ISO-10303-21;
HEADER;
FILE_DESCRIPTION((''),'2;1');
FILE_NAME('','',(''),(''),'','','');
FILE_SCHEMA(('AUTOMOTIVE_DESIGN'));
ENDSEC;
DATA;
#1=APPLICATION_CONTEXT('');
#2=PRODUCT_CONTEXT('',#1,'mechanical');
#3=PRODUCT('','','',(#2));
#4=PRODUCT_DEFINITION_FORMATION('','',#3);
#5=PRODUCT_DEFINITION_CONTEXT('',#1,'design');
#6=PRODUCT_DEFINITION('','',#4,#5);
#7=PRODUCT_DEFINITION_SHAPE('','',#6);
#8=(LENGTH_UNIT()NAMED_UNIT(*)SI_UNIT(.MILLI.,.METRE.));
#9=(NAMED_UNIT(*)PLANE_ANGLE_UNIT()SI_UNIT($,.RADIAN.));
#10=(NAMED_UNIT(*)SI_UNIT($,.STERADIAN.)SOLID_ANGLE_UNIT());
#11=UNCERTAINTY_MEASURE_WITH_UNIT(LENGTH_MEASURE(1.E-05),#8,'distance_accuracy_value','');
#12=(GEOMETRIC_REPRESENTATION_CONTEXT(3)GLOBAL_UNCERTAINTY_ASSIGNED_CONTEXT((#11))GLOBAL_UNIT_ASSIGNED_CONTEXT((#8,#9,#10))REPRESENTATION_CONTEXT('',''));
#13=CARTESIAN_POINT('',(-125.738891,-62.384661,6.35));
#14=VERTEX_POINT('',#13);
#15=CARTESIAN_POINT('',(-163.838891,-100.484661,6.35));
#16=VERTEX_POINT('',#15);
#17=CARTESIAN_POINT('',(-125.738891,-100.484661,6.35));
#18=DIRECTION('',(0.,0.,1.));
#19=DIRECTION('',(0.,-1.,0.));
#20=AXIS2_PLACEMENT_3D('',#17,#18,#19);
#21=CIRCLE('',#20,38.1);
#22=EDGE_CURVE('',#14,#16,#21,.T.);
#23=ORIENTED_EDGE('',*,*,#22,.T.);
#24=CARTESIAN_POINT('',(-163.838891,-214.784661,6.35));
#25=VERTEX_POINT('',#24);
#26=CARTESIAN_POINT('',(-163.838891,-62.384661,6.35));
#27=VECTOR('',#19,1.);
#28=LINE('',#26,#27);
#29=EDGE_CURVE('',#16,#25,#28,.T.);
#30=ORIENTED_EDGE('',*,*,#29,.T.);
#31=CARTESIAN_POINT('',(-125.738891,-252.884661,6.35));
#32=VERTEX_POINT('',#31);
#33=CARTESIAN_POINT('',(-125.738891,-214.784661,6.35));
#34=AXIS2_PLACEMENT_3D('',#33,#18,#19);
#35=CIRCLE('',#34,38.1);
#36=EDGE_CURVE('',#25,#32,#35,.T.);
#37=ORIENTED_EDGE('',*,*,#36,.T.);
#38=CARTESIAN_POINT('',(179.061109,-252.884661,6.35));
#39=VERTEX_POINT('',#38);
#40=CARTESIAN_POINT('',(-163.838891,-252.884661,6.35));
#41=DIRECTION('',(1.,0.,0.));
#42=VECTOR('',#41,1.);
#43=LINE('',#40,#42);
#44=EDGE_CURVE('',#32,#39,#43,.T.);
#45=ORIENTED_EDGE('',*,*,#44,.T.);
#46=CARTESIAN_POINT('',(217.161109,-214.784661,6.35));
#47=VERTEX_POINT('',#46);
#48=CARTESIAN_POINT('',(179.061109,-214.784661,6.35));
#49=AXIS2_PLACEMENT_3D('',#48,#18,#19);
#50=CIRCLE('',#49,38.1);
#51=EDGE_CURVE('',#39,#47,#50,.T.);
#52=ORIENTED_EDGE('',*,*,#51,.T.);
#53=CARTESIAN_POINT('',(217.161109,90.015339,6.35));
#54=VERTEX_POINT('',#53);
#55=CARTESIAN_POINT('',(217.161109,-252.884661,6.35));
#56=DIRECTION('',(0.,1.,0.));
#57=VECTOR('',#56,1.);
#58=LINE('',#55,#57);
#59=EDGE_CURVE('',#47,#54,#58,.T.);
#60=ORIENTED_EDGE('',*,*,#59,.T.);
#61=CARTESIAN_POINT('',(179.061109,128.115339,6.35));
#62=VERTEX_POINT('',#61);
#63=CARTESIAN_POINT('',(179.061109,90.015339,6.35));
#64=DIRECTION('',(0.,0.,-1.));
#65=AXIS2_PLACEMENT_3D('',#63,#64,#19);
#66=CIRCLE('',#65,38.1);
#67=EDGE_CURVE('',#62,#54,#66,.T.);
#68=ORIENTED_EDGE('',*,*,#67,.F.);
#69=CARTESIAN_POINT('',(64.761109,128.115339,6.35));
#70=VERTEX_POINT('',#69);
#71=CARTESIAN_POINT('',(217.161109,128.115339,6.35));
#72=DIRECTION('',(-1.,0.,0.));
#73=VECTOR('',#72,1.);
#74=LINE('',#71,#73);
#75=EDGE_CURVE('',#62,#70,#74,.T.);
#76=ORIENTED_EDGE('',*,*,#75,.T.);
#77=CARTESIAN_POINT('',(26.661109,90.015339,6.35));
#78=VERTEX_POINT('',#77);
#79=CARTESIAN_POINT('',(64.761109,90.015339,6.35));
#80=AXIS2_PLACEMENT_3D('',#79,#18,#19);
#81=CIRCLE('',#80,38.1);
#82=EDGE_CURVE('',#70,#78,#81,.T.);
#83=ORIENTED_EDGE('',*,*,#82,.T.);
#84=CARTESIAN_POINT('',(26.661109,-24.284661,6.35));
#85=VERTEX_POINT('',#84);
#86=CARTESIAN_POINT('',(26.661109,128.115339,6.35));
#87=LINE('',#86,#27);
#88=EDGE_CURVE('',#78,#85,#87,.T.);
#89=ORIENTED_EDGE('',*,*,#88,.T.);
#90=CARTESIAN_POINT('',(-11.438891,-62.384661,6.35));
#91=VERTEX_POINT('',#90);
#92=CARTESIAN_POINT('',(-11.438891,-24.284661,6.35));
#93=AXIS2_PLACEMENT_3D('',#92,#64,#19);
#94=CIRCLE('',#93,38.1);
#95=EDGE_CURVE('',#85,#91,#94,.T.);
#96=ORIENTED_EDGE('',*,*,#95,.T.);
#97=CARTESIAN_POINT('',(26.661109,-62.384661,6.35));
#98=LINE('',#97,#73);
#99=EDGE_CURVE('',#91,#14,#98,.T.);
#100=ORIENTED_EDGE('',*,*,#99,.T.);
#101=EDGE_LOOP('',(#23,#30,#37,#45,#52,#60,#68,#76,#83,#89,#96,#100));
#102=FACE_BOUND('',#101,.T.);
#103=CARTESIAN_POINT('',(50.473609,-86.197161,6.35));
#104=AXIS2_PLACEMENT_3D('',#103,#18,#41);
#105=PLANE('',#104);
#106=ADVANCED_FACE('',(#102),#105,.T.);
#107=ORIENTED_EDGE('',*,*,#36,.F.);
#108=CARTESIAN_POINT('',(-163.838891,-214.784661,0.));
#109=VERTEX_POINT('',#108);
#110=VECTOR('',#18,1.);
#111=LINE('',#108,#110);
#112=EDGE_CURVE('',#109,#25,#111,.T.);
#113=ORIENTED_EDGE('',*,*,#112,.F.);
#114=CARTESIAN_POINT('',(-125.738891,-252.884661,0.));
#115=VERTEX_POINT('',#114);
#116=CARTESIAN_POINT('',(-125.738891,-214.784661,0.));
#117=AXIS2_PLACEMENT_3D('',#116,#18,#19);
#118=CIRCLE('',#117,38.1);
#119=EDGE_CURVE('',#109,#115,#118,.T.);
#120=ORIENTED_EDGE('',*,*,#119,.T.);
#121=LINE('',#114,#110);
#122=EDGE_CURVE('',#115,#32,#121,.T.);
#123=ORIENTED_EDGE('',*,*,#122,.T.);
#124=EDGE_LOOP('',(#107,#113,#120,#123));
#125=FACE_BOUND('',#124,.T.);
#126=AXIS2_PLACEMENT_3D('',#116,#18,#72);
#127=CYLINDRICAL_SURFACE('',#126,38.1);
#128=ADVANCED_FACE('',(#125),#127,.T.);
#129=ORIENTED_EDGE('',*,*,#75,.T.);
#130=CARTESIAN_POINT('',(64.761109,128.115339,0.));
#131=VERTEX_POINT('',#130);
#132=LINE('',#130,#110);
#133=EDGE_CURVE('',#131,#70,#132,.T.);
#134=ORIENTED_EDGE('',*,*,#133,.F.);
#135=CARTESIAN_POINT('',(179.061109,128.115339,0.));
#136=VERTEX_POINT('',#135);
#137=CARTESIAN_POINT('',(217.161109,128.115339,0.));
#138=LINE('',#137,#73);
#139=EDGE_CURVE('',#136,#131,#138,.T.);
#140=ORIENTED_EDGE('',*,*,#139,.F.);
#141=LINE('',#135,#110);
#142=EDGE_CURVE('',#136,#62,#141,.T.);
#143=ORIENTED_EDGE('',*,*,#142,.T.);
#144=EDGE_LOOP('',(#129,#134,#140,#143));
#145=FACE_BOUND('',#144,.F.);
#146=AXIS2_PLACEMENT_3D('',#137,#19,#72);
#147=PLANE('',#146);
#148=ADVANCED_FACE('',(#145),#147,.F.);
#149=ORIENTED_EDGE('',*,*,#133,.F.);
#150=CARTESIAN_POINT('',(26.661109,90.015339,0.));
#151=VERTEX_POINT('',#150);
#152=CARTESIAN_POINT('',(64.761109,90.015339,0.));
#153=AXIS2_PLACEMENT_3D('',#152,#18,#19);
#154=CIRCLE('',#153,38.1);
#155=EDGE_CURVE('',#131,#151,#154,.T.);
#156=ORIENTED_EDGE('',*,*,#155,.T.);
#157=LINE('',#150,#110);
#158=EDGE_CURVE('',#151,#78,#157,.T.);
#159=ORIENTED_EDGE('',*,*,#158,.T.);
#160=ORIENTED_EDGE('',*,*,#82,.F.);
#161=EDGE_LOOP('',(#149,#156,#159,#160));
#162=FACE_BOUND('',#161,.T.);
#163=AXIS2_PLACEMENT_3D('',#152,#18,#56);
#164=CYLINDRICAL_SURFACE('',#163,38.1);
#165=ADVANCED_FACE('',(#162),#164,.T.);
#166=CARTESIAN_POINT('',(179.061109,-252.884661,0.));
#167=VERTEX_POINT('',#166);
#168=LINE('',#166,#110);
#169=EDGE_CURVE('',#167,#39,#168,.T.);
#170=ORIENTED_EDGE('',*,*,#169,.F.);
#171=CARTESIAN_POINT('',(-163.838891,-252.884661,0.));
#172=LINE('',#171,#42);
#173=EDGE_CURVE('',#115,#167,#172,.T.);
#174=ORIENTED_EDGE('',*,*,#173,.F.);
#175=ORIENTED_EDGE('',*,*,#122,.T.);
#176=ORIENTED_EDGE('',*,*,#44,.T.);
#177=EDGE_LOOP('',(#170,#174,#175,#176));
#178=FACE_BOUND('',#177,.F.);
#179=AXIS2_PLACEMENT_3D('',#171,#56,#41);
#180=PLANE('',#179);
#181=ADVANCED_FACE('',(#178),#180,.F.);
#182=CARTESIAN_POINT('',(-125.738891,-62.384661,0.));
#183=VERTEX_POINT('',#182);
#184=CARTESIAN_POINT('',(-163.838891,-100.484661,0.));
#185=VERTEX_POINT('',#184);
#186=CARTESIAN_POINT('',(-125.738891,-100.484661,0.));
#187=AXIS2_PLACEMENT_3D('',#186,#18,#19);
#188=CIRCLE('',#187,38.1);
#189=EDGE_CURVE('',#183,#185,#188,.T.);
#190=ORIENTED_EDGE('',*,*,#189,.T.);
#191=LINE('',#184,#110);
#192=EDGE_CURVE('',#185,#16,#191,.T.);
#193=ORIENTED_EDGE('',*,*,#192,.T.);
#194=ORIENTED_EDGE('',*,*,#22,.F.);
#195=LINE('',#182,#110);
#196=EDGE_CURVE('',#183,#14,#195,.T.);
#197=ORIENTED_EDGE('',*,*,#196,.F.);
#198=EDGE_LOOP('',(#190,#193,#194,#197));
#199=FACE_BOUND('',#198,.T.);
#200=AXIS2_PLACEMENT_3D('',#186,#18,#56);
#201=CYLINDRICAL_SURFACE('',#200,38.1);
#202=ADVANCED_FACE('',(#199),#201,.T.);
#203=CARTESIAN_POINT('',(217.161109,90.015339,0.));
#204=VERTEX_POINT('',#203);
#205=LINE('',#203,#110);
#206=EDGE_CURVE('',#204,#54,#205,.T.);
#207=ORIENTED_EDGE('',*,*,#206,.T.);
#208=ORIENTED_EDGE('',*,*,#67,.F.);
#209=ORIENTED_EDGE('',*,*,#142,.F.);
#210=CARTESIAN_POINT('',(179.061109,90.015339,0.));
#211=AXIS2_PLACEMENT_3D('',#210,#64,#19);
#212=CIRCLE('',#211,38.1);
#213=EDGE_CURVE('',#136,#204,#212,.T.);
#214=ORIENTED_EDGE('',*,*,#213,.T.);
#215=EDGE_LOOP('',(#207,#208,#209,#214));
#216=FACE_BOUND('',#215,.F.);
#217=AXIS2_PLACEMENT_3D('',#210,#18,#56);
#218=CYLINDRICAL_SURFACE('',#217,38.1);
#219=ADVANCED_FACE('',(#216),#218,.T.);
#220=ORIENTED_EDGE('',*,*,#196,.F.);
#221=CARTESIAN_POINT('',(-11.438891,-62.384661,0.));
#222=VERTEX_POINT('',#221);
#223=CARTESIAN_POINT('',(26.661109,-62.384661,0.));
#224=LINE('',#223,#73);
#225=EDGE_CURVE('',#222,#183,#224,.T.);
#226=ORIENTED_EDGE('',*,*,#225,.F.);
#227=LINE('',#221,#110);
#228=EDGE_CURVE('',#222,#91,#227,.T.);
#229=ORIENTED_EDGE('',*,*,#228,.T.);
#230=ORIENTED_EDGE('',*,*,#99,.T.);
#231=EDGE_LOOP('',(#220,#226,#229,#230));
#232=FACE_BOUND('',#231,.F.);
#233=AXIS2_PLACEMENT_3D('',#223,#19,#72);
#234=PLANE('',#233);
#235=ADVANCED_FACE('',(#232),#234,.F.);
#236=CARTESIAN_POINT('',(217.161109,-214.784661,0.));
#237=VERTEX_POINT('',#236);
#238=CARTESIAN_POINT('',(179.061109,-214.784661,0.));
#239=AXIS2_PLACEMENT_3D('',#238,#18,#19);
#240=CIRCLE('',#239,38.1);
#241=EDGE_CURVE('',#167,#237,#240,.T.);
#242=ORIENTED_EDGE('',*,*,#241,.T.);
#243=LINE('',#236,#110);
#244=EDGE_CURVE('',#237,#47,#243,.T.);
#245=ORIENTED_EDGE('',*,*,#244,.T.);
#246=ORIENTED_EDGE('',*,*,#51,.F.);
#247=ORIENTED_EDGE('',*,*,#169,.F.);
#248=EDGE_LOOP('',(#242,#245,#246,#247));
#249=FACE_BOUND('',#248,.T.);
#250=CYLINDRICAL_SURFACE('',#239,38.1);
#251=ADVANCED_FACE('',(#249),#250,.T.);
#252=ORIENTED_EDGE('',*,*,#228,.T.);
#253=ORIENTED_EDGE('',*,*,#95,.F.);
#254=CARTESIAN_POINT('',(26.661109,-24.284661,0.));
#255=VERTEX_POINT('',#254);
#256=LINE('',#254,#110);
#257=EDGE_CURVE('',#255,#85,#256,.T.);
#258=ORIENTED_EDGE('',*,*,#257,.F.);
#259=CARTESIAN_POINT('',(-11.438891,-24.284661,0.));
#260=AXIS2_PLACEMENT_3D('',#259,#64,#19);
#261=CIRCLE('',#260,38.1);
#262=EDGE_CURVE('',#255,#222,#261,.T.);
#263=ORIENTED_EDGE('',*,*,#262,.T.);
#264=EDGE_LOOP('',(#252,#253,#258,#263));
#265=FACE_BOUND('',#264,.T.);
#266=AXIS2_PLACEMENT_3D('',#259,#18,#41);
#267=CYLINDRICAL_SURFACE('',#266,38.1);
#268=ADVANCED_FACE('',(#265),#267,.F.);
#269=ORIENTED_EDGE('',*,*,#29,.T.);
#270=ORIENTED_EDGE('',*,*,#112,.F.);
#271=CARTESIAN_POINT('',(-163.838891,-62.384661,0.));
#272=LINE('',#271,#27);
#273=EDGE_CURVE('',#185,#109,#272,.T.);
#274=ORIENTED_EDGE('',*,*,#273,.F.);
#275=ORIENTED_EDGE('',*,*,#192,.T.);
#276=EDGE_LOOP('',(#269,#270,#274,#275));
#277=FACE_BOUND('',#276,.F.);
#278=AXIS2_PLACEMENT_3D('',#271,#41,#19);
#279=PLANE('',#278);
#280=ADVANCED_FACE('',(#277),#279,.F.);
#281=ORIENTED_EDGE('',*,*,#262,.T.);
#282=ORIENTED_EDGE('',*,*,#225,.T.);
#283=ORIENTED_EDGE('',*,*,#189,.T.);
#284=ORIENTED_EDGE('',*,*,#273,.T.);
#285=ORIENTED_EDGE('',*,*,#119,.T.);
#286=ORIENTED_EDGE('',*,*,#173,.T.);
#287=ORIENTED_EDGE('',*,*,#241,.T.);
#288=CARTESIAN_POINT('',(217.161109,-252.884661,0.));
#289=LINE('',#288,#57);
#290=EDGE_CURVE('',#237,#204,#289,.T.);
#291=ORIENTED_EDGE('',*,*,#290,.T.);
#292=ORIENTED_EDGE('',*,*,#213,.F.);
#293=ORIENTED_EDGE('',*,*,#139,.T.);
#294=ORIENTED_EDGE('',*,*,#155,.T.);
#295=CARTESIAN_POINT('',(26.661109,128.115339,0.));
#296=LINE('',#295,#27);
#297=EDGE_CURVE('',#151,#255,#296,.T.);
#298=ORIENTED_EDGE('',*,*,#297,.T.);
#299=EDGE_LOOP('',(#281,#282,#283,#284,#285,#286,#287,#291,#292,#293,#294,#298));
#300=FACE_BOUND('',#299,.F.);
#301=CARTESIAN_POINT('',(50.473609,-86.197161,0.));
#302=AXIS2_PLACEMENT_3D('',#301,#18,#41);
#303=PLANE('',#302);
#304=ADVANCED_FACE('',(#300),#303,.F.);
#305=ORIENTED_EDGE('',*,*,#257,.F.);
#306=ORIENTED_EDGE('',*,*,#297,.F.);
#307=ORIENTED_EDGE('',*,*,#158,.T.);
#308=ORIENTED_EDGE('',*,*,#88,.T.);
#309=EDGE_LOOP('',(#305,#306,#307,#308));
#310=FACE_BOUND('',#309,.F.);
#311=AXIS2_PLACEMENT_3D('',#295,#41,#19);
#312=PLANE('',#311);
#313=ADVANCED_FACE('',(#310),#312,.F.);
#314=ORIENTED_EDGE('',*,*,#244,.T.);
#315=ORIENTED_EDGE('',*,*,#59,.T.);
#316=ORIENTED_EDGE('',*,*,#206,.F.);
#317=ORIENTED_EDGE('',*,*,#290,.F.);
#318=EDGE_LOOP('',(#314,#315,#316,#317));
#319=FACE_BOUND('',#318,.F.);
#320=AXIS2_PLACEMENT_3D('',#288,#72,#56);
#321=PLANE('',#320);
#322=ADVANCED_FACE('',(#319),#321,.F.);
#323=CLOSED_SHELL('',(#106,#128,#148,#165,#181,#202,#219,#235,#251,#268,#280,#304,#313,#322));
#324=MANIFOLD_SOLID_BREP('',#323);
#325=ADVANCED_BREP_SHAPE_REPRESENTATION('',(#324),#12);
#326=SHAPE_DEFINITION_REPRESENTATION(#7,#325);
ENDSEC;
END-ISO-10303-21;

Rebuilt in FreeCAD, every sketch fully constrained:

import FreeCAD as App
import Part
import Sketcher
from FreeCAD import Vector
Q = App.Units.Quantity


def edges_at(feature, points):
    """Names of the edges that pass closest to the given points."""
    edges = feature.Shape.Edges
    near = lambda p: min(range(len(edges)), key=lambda i: edges[i].distToShape(Part.Vertex(*p))[0])
    return sorted({f"Edge{near(p) + 1}" for p in points})


def add_polygon(sketch, points):
    """Adds a closed chain of lines whose ends are joined by coincident constraints."""
    first, n = sketch.GeometryCount, len(points)
    for a, b in zip(points, points[1:] + points[:1]):
        sketch.addGeometry(Part.LineSegment(App.Vector(*a, 0), App.Vector(*b, 0)), False)
    for i in range(n):
        sketch.addConstraint(Sketcher.Constraint("Coincident", first + i, 2, first + (i + 1) % n, 1))

doc = App.newDocument("Part")
body = doc.addObject("PartDesign::Body", "Body")

sketch1 = doc.addObject("Sketcher::SketchObject", "Sketch")
body.addObject(sketch1)
sketch1.AttachmentSupport = (doc.XY_Plane, [""])
sketch1.MapMode = "FlatFace"
add_polygon(sketch1, [(217, 128), (27, 128), (27, -62), (-164, -62), (-164, -253), (217, -253)])
sketch1.addConstraint([
    Sketcher.Constraint("Horizontal", 0),
    Sketcher.Constraint("Vertical", 1),
    Sketcher.Constraint("Horizontal", 2),
    Sketcher.Constraint("Vertical", 3),
    Sketcher.Constraint("Horizontal", 4),
    Sketcher.Constraint("Vertical", 5),
    Sketcher.Constraint("Equal", 0, 2),
    Sketcher.Constraint("Equal", 2, 1),
    Sketcher.Constraint("Equal", 1, 3),
    Sketcher.Constraint("DistanceX", 4, 1, 4, 2, Q("15 in")),
    Sketcher.Constraint("DistanceX", -1, 1, 0, 2, 26.661109),
    Sketcher.Constraint("DistanceY", -1, 1, 0, 2, 128.115339),
])
pad1 = doc.addObject("PartDesign::Pad", "Pad")
body.addObject(pad1)
pad1.Profile = sketch1
pad1.Length = Q("0.25 in")
doc.recompute()

fillet = doc.addObject("PartDesign::Fillet", "Fillet")
body.addObject(fillet)
fillet.Base = (pad1, edges_at(pad1, [
    (217.161, -252.885, 3.175),
    (217.161, 128.115, 3.175),
    (26.661, 128.115, 3.175),
    (26.661, -62.385, 3.175),
    (-163.839, -62.385, 3.175),
    (-163.839, -252.885, 3.175),
]))
fillet.Radius = Q("1.5 in")

doc.recompute()
